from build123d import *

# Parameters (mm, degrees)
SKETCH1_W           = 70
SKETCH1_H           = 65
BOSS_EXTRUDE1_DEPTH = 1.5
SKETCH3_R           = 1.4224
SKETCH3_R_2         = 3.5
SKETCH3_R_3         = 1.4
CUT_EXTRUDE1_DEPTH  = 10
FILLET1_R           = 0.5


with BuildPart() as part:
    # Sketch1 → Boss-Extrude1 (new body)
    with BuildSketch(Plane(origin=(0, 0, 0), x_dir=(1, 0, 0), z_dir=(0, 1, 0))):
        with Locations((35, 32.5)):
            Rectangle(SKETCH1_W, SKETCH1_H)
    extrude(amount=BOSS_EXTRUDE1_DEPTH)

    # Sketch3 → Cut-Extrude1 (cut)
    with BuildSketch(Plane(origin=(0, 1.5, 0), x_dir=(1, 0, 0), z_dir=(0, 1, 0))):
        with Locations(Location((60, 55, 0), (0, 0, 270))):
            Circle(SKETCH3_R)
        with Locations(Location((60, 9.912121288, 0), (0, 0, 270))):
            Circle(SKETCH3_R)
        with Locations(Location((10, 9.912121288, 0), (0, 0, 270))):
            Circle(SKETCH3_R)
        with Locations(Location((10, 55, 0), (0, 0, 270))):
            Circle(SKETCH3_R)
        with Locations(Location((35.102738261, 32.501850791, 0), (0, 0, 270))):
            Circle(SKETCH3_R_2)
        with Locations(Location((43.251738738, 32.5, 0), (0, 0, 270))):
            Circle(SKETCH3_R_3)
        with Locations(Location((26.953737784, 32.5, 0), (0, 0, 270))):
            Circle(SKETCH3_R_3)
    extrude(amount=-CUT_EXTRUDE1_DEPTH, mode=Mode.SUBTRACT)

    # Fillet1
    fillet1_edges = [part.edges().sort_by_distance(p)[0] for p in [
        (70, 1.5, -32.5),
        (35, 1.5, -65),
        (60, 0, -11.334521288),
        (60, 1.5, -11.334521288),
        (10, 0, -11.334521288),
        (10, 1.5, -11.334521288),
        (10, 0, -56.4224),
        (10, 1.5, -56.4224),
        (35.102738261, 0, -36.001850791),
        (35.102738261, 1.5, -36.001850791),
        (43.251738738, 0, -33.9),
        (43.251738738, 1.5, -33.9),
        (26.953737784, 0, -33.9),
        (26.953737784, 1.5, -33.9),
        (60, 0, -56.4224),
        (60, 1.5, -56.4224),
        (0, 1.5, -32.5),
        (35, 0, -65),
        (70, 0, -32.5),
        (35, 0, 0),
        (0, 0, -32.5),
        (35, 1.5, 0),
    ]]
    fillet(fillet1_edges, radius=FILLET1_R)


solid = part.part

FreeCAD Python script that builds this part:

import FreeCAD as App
import Part
import Sketcher
Q = App.Units.Quantity


def edges_at(feature, points):
    """Names of the edges that pass closest to the given points."""
    edges = feature.Shape.Edges
    near = lambda p: min(range(len(edges)), key=lambda i: edges[i].distToShape(Part.Vertex(*p))[0])
    return sorted({f"Edge{near(p) + 1}" for p in points})

doc = App.newDocument("Part")
params = doc.addObject("Spreadsheet::Sheet", "Params")
for row, (alias, value) in enumerate([
    ("sketch1_width", "70 mm"),
    ("sketch1_height", "65 mm"),
    ("pad1_length", "1.5 mm"),
    ("sketch2_diameter", "7 mm"),
    ("sketch2_diameter2", "2.8 mm"),
    ("pocket1_length", "10 mm"),
    ("fillet_radius", "0.5 mm"),
], start=1):
    params.set(f"A{row}", alias)
    params.set(f"B{row}", "=" + value)
    params.setAlias(f"B{row}", alias)

body = doc.addObject("PartDesign::Body", "Body")

# Sketch on XZ plane
sketch1 = body.newObject("Sketcher::SketchObject", "Sketch")
sketch1.AttachmentSupport = (doc.getObject("XZ_Plane"), [""])
sketch1.MapMode = "FlatFace"
sketch1.addGeometry([
    Part.LineSegment(App.Vector(0, -65, 0), App.Vector(0, 0, 0)),
    Part.LineSegment(App.Vector(0, 0, 0), App.Vector(70, 0, 0)),
    Part.LineSegment(App.Vector(70, 0, 0), App.Vector(70, -65, 0)),
    Part.LineSegment(App.Vector(70, -65, 0), App.Vector(0, -65, 0)),
], False)
sketch1.addConstraint([
    Sketcher.Constraint("Coincident", 0, 2, 1, 1),
    Sketcher.Constraint("Coincident", 1, 2, 2, 1),
    Sketcher.Constraint("Coincident", 2, 2, 3, 1),
    Sketcher.Constraint("Coincident", 3, 2, 0, 1),
    Sketcher.Constraint("Vertical", 0),
    Sketcher.Constraint("Horizontal", 1),
    Sketcher.Constraint("Vertical", 2),
    Sketcher.Constraint("Horizontal", 3),
    Sketcher.Constraint("Coincident", 0, 2, -1, 1),
    Sketcher.Constraint("DistanceX", 1, 1, 1, 2, Q("70 mm")),
    Sketcher.Constraint("DistanceY", 0, 1, 0, 2, Q("65 mm")),
])
sketch1.setExpression("Constraints[9]", "Params.sketch1_width")
sketch1.setExpression("Constraints[10]", "Params.sketch1_height")
pad1 = body.newObject("PartDesign::Pad", "Pad")
pad1.Profile = sketch1
pad1.setExpression("Length", "Params.pad1_length")
pad1.Reversed = True

# Sketch on XZ plane
sketch2 = body.newObject("Sketcher::SketchObject", "Sketch001")
sketch2.AttachmentSupport = (doc.getObject("XZ_Plane"), [""])
sketch2.MapMode = "FlatFace"
sketch2.AttachmentOffset = App.Placement(App.Vector(0, 0, -1.5), App.Rotation())
sketch2.addGeometry([
    Part.Circle(App.Vector(60, -55, 0), App.Vector(0, 0, 1), 1.4224),  # 0
    Part.Circle(App.Vector(60, -9.912121, 0), App.Vector(0, 0, 1), 1.4224),  # 1
    Part.Circle(App.Vector(10, -9.912121, 0), App.Vector(0, 0, 1), 1.4224),  # 2
    Part.Circle(App.Vector(10, -55, 0), App.Vector(0, 0, 1), 1.4224),  # 3
    Part.Circle(App.Vector(35.102738, -32.501851, 0), App.Vector(0, 0, 1), 3.5),  # 4
    Part.Circle(App.Vector(43.251739, -32.5, 0), App.Vector(0, 0, 1), 1.4),  # 5
    Part.Circle(App.Vector(26.953738, -32.5, 0), App.Vector(0, 0, 1), 1.4),  # 6
], False)
sketch2.addConstraint([
    Sketcher.Constraint("Equal", 0, 1),
    Sketcher.Constraint("Equal", 1, 2),
    Sketcher.Constraint("Equal", 2, 3),
    Sketcher.Constraint("Equal", 5, 6),
    Sketcher.Constraint("Horizontal", 1, 3, 2, 3),
    Sketcher.Constraint("Horizontal", 0, 3, 3, 3),
    Sketcher.Constraint("Horizontal", 5, 3, 6, 3),
    Sketcher.Constraint("Vertical", 0, 3, 1, 3),
    Sketcher.Constraint("Vertical", 2, 3, 3, 3),
    Sketcher.Constraint("Diameter", 4, Q("7 mm")),
    Sketcher.Constraint("Diameter", 5, Q("2.8 mm")),
    Sketcher.Constraint("DistanceX", -1, 1, 0, 3, Q("60 mm")),
    Sketcher.Constraint("DistanceY", 0, 3, -1, 1, Q("55 mm")),
    Sketcher.Constraint("DistanceX", -1, 1, 2, 3, Q("10 mm")),
    Sketcher.Constraint("Diameter", 0, Q("2.8448 mm")),
    Sketcher.Constraint("DistanceY", 5, 3, -1, 1, Q("32.5 mm")),
    Sketcher.Constraint("DistanceX", 4, 3, 5, 3, Q("8.149 mm")),
    Sketcher.Constraint("DistanceX", 6, 3, 4, 3, Q("8.149 mm")),
    Sketcher.Constraint("DistanceY", 1, 3, -1, 1, Q("9.912121 mm")),
    Sketcher.Constraint("DistanceX", -1, 1, 4, 3, Q("35.102738 mm")),
    Sketcher.Constraint("DistanceY", 4, 3, -1, 1, Q("32.501851 mm")),
])
sketch2.setExpression("Constraints[9]", "Params.sketch2_diameter")
sketch2.setExpression("Constraints[10]", "Params.sketch2_diameter2")
pocket1 = body.newObject("PartDesign::Pocket", "Pocket")
pocket1.Profile = sketch2
pocket1.setExpression("Length", "Params.pocket1_length")
pocket1.Reversed = True
doc.recompute()

fillet = body.newObject("PartDesign::Fillet", "Fillet")
fillet.Base = (pocket1, edges_at(pocket1, [
    (70, 1.5, -32.5),
    (35, 1.5, -65),
    (60, 0, -11.335),
    (60, 1.5, -11.335),
    (10, 0, -11.335),
    (10, 1.5, -11.335),
    (10, 0, -56.422),
    (10, 1.5, -56.422),
    (35.103, 0, -36.002),
    (35.103, 1.5, -36.002),
    (43.252, 0, -33.9),
    (43.252, 1.5, -33.9),
    (26.954, 0, -33.9),
    (26.954, 1.5, -33.9),
    (60, 0, -56.422),
    (60, 1.5, -56.422),
    (0, 1.5, -32.5),
    (35, 0, -65),
    (70, 0, -32.5),
    (35, 0, 0),
    (0, 0, -32.5),
    (35, 1.5, 0),
]))
fillet.setExpression("Radius", "Params.fillet_radius")

doc.recompute()
